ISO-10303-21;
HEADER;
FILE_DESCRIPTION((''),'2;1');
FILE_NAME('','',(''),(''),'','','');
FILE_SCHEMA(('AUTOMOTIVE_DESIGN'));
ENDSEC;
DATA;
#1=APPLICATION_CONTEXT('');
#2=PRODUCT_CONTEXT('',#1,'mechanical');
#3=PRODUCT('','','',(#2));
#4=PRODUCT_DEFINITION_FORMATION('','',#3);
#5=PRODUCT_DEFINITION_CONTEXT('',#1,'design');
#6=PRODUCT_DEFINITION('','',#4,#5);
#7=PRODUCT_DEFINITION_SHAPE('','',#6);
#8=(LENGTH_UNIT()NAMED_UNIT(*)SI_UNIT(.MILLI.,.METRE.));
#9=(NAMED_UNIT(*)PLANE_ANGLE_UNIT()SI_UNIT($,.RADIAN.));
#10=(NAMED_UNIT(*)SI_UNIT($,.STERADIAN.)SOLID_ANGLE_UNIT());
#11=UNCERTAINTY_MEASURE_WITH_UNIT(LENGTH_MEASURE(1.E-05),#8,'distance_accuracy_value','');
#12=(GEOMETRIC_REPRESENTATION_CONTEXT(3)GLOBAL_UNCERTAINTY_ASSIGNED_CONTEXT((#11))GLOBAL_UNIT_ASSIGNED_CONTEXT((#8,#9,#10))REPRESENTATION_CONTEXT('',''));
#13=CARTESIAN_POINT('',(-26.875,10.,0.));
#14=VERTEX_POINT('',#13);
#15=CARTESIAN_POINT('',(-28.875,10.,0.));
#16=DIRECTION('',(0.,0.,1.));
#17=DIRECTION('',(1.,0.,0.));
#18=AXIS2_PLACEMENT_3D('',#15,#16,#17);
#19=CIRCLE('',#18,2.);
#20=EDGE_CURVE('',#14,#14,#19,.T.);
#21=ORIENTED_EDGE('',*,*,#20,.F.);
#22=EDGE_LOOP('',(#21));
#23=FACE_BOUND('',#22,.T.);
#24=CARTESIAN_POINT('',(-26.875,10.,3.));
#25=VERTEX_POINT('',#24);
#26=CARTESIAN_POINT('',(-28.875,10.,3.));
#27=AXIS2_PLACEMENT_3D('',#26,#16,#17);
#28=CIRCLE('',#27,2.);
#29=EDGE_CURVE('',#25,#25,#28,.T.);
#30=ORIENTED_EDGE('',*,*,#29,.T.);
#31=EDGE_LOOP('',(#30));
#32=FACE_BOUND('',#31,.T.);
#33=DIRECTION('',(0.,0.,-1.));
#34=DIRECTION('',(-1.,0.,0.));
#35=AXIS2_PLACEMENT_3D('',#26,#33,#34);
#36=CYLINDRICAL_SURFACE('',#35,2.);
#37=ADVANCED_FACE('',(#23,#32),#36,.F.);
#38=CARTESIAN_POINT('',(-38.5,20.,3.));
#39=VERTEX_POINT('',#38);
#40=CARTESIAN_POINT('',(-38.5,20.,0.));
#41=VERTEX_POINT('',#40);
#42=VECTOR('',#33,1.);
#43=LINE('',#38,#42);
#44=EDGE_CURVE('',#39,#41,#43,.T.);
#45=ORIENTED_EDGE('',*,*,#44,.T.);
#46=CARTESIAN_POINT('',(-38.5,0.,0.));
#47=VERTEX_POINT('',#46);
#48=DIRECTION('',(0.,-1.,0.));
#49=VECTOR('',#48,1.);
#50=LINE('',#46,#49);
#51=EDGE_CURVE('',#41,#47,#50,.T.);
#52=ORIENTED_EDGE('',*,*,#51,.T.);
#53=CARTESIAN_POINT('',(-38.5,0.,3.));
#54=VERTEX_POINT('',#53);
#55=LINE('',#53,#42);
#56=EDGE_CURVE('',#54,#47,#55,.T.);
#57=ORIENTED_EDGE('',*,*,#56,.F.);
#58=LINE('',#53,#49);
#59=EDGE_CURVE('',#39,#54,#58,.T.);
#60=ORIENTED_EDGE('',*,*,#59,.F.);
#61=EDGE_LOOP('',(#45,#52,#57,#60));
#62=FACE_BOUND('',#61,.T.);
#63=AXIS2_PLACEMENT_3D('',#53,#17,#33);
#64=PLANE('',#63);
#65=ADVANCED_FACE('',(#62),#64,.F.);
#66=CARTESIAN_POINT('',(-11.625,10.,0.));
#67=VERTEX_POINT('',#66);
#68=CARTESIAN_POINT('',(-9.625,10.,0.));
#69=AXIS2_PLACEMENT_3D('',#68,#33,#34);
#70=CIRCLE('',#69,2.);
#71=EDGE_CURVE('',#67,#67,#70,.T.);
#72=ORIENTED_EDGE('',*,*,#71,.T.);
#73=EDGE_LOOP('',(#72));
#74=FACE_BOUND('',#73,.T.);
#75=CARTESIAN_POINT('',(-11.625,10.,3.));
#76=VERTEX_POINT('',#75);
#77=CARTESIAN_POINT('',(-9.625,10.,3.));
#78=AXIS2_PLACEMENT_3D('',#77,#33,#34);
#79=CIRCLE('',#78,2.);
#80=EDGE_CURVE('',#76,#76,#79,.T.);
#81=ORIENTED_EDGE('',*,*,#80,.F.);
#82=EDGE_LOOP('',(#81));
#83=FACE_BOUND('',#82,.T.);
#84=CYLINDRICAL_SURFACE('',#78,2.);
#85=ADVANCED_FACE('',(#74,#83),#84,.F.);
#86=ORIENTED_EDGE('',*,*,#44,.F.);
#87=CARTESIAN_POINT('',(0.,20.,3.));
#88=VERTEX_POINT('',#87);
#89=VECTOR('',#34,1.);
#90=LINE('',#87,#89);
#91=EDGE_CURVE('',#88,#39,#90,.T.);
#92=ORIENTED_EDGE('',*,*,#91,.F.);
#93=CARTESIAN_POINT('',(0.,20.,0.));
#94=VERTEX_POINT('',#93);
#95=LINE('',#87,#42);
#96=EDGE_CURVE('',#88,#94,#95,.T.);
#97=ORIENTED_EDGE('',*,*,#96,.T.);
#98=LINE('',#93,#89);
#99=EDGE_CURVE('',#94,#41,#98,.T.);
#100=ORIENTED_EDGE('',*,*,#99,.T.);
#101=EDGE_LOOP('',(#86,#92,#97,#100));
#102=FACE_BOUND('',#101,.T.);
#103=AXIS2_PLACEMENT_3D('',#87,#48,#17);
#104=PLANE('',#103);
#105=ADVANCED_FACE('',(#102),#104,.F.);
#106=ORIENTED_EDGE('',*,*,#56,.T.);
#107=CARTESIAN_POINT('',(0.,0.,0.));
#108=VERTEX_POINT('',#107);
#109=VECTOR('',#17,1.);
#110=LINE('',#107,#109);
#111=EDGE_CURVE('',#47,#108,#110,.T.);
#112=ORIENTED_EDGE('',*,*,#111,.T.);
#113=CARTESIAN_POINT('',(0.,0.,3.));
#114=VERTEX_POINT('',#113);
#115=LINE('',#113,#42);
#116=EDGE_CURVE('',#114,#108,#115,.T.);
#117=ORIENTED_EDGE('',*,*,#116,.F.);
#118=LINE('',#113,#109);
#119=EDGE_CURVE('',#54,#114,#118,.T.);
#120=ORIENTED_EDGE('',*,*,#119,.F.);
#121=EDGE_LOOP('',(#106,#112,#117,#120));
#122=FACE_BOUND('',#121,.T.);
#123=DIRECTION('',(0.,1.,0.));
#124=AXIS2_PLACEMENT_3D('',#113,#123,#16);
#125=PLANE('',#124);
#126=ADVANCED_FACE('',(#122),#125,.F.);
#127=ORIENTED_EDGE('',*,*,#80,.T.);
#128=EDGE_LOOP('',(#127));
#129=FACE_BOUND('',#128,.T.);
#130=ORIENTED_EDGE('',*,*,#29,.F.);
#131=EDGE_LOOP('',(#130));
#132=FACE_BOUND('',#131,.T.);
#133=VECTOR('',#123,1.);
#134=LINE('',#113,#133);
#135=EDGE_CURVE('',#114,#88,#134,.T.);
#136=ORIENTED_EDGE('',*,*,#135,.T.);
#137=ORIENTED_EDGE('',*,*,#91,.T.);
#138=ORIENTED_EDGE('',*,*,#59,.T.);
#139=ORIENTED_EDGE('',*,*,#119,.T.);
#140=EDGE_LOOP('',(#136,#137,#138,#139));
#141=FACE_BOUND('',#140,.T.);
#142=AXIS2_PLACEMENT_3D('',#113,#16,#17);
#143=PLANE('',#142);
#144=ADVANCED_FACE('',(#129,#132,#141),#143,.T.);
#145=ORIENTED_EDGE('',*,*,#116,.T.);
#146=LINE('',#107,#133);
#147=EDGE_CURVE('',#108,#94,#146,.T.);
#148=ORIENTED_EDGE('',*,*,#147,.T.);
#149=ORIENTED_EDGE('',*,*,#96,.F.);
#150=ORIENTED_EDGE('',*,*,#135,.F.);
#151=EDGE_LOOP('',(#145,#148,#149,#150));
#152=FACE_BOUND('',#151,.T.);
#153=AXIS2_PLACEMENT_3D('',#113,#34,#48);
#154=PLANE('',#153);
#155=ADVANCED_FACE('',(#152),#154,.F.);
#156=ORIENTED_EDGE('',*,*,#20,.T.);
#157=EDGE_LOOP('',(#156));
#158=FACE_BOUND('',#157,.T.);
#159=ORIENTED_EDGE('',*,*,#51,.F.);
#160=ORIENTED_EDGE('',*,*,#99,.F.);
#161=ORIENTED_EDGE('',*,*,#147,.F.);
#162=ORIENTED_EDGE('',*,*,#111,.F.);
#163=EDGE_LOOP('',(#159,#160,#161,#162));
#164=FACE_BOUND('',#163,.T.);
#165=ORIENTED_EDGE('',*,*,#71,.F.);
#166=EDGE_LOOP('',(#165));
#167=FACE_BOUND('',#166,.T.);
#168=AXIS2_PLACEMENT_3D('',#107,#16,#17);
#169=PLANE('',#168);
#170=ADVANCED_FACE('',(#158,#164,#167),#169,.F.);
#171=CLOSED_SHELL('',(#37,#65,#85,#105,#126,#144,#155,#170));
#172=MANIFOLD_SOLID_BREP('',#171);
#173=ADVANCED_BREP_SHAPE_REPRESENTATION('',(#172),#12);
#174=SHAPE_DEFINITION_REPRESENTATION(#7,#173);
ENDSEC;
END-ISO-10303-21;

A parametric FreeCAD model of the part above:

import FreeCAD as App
import Part
import Sketcher

V = App.Vector
Q = App.Units.Quantity


def add_polygon(sketch, points):
    """Adds a closed chain of lines whose ends are joined by coincident constraints."""
    first, n = sketch.GeometryCount, len(points)
    for a, b in zip(points, points[1:] + points[:1]):
        sketch.addGeometry(Part.LineSegment(App.Vector(*a, 0), App.Vector(*b, 0)), False)
    for i in range(n):
        sketch.addConstraint(Sketcher.Constraint("Coincident", first + i, 2, first + (i + 1) % n, 1))

doc = App.newDocument("Part")
body = doc.addObject("PartDesign::Body", "Body")

# Sketch on XY plane
sketch1 = body.newObject("Sketcher::SketchObject", "Sketch")
sketch1.AttachmentSupport = (doc.getObject("XY_Plane"), [""])
sketch1.MapMode = "FlatFace"
add_polygon(sketch1, [(-38.5, 20), (-38.5, 0), (0, 0), (0, 20)])  # lines 0-3
sketch1.addConstraint([
    Sketcher.Constraint("Vertical", 0),
    Sketcher.Constraint("Horizontal", 1),
    Sketcher.Constraint("Vertical", 2),
    Sketcher.Constraint("Horizontal", 3),
    Sketcher.Constraint("Coincident", 1, 2, -1, 1),
    Sketcher.Constraint("DistanceY", 0, 2, 0, 1, Q("20 mm")),
    Sketcher.Constraint("DistanceX", 1, 1, 1, 2, Q("38.5 mm")),
])
pad1 = body.newObject("PartDesign::Pad", "Pad")
pad1.Profile = sketch1
pad1.Length = 3

# Sketch on XY plane
sketch2 = body.newObject("Sketcher::SketchObject", "Sketch001")
sketch2.AttachmentSupport = (doc.getObject("XY_Plane"), [""])
sketch2.MapMode = "FlatFace"
sketch2.addGeometry([
    Part.Circle(V(-9.625, 10, 0), V(0, 0, 1), 2),
    Part.Circle(V(-28.875, 10, 0), V(0, 0, 1), 2),
], False)
sketch2.addConstraint([
    Sketcher.Constraint("Equal", 0, 1),
    Sketcher.Constraint("Horizontal", 0, 3, 1, 3),
    Sketcher.Constraint("Diameter", 0, Q("4 mm")),
    Sketcher.Constraint("DistanceY", -1, 1, 0, 3, Q("10 mm")),
    Sketcher.Constraint("DistanceX", 1, 3, 0, 3, Q("19.25 mm")),
    Sketcher.Constraint("DistanceX", 0, 3, -1, 1, Q("9.625 mm")),
])
pocket1 = body.newObject("PartDesign::Pocket", "Pocket")
pocket1.Profile = sketch2
pocket1.Length = 3
pocket1.Reversed = True

doc.recompute()
